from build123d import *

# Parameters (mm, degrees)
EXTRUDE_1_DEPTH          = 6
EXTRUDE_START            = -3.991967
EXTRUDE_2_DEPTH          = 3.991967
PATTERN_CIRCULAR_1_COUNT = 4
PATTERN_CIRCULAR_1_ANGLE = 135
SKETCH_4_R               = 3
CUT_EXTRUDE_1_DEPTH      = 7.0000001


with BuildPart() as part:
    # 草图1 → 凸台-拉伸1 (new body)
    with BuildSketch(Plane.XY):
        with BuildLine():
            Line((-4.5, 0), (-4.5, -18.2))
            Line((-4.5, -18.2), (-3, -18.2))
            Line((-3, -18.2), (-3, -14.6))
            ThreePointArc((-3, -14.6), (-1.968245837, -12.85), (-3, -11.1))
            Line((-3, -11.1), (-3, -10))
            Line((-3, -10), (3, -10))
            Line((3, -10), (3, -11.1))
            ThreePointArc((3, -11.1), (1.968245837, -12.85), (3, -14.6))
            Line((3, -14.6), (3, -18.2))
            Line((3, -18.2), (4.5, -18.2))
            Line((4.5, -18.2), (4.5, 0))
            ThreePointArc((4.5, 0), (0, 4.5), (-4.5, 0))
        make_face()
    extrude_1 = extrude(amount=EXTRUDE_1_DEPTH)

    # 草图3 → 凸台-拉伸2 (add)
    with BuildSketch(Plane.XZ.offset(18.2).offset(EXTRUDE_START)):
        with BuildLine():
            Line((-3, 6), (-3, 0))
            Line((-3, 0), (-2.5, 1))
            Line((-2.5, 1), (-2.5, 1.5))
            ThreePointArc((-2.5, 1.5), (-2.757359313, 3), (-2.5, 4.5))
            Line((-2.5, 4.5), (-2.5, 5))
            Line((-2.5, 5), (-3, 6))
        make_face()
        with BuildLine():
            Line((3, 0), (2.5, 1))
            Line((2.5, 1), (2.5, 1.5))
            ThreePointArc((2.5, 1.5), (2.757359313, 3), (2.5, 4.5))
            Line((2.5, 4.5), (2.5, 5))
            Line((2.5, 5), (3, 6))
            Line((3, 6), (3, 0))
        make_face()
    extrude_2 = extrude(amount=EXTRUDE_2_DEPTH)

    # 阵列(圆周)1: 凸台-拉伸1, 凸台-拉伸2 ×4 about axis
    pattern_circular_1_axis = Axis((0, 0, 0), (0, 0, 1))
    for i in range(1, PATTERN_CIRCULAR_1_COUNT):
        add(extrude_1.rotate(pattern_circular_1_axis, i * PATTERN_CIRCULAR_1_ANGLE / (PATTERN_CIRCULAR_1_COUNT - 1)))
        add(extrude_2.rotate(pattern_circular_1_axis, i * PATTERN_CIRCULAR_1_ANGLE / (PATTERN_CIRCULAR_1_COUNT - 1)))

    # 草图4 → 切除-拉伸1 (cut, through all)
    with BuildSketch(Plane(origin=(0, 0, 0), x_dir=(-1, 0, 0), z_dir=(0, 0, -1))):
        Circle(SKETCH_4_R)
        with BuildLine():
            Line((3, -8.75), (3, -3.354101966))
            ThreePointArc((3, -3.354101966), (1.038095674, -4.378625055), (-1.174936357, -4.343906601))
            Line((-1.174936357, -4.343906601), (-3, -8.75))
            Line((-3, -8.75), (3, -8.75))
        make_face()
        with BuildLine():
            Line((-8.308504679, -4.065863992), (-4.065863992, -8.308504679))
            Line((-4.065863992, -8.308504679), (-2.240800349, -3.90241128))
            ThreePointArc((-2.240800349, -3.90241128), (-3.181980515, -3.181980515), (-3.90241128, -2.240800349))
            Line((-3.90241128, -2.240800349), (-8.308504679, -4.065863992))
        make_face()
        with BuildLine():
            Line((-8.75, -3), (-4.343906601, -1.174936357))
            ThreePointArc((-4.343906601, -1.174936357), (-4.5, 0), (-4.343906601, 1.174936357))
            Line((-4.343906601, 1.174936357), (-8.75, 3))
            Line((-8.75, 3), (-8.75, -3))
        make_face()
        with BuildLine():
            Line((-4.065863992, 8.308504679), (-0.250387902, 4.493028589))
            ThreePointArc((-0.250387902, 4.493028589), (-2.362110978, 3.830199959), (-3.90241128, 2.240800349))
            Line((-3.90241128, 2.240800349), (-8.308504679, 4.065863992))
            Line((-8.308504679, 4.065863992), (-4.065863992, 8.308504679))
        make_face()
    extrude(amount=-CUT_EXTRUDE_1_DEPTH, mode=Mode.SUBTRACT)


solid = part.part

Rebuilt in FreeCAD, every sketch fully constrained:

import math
import FreeCAD as App
import Part
import Sketcher
from FreeCAD import Vector
Q = App.Units.Quantity

doc = App.newDocument("Part")
body = doc.addObject("PartDesign::Body", "Body")

sketch1 = doc.addObject("Sketcher::SketchObject", "Sketch")
body.addObject(sketch1)
sketch1.AttachmentSupport = (doc.XY_Plane, [""])
sketch1.MapMode = "FlatFace"
sketch1.addGeometry([
    Part.LineSegment(Vector(-4.5, 0, 0), Vector(-4.5, -18.2, 0)),
    Part.LineSegment(Vector(-4.5, -18.2, 0), Vector(-3, -18.2, 0)),
    Part.LineSegment(Vector(-3, -18.2, 0), Vector(-3, -14.6, 0)),
    Part.ArcOfCircle(Part.Circle(Vector(-3.968246, -12.85, 0), Vector(0, 0, 1), 2), math.radians(-61.044976), math.radians(61.044976)),
    Part.LineSegment(Vector(-3, -11.1, 0), Vector(-3, -10, 0)),
    Part.LineSegment(Vector(-3, -10, 0), Vector(3, -10, 0)),
    Part.LineSegment(Vector(3, -10, 0), Vector(3, -11.1, 0)),
    Part.ArcOfCircle(Part.Circle(Vector(3.968246, -12.85, 0), Vector(0, 0, 1), 2), math.radians(118.955024), math.radians(241.044976)),
    Part.LineSegment(Vector(3, -14.6, 0), Vector(3, -18.2, 0)),
    Part.LineSegment(Vector(3, -18.2, 0), Vector(4.5, -18.2, 0)),
    Part.LineSegment(Vector(4.5, -18.2, 0), Vector(4.5, 0, 0)),
    Part.ArcOfCircle(Part.Circle(Vector(0, 0, 0), Vector(0, 0, 1), 4.5), math.radians(0), math.radians(180)),
], False)
sketch1.addConstraint([
    Sketcher.Constraint("Coincident", 0, 2, 1, 1),
    Sketcher.Constraint("Coincident", 1, 2, 2, 1),
    Sketcher.Constraint("Coincident", 2, 2, 3, 1),
    Sketcher.Constraint("Coincident", 3, 2, 4, 1),
    Sketcher.Constraint("Coincident", 4, 2, 5, 1),
    Sketcher.Constraint("Coincident", 5, 2, 6, 1),
    Sketcher.Constraint("Coincident", 6, 2, 7, 1),
    Sketcher.Constraint("Coincident", 7, 2, 8, 1),
    Sketcher.Constraint("Coincident", 8, 2, 9, 1),
    Sketcher.Constraint("Coincident", 9, 2, 10, 1),
    Sketcher.Constraint("Tangent", 10, 2, 11, 1),
    Sketcher.Constraint("Tangent", 11, 2, 0, 1),
    Sketcher.Constraint("Vertical", 0),
    Sketcher.Constraint("Horizontal", 1),
    Sketcher.Constraint("Vertical", 2),
    Sketcher.Constraint("Vertical", 4),
    Sketcher.Constraint("Horizontal", 5),
    Sketcher.Constraint("Vertical", 6),
    Sketcher.Constraint("Vertical", 8),
    Sketcher.Constraint("Horizontal", 9),
    Sketcher.Constraint("Vertical", 10),
    Sketcher.Constraint("Coincident", 11, 3, -1, 1),
    Sketcher.Constraint("Equal", 3, 7),
    Sketcher.Constraint("Symmetric", 3, 3, 7, 3, -2),
    Sketcher.Constraint("Symmetric", 1, 2, 8, 2, -2),
    Sketcher.Constraint("Horizontal", 3, 2, 6, 2),
    Sketcher.Constraint("Vertical", 2, 2, 3, 2),
    Sketcher.Constraint("Radius", 3, Q("2 mm")),
    Sketcher.Constraint("Radius", 11, Q("4.5 mm")),
    Sketcher.Constraint("DistanceX", 5, 1, 5, 2, Q("6 mm")),
    Sketcher.Constraint("DistanceY", 0, 2, 0, 1, Q("18.2 mm")),
    Sketcher.Constraint("DistanceY", 2, 1, 2, 2, Q("3.6 mm")),
    Sketcher.Constraint("DistanceY", 4, 1, 4, 2, Q("1.1 mm")),
    Sketcher.Constraint("DistanceY", 4, 2, -1, 1, Q("10 mm")),
])
pad1 = doc.addObject("PartDesign::Pad", "Pad")
body.addObject(pad1)
pad1.Profile = sketch1
pad1.Length = 6

sketch2 = doc.addObject("Sketcher::SketchObject", "Sketch001")
body.addObject(sketch2)
sketch2.AttachmentSupport = (doc.XZ_Plane, [""])
sketch2.MapMode = "FlatFace"
sketch2.AttachmentOffset = App.Placement(Vector(0, 0, 14.208033), App.Rotation())
sketch2.addGeometry([
    Part.LineSegment(Vector(-3, 6, 0), Vector(-3, 0, 0)),
    Part.LineSegment(Vector(-3, 0, 0), Vector(-2.5, 1, 0)),
    Part.LineSegment(Vector(-2.5, 1, 0), Vector(-2.5, 1.5, 0)),
    Part.ArcOfCircle(Part.Circle(Vector(1.742641, 3, 0), Vector(0, 0, 1), 4.5), math.radians(160.528779), math.radians(199.471221)),
    Part.LineSegment(Vector(-2.5, 4.5, 0), Vector(-2.5, 5, 0)),
    Part.LineSegment(Vector(-2.5, 5, 0), Vector(-3, 6, 0)),
    Part.LineSegment(Vector(2.5, 1, 0), Vector(3, 0, 0)),
    Part.LineSegment(Vector(3, 0, 0), Vector(3, 6, 0)),
    Part.LineSegment(Vector(3, 6, 0), Vector(2.5, 5, 0)),
    Part.LineSegment(Vector(2.5, 5, 0), Vector(2.5, 4.5, 0)),
    Part.ArcOfCircle(Part.Circle(Vector(-1.742641, 3, 0), Vector(0, 0, 1), 4.5), math.radians(-19.471221), math.radians(19.471221)),
    Part.LineSegment(Vector(2.5, 1.5, 0), Vector(2.5, 1, 0)),
], False)
sketch2.addConstraint([
    Sketcher.Constraint("Coincident", 0, 2, 1, 1),
    Sketcher.Constraint("Coincident", 1, 2, 2, 1),
    Sketcher.Constraint("Coincident", 2, 2, 3, 2),
    Sketcher.Constraint("Coincident", 3, 1, 4, 1),
    Sketcher.Constraint("Coincident", 4, 2, 5, 1),
    Sketcher.Constraint("Coincident", 5, 2, 0, 1),
    Sketcher.Constraint("Coincident", 6, 2, 7, 1),
    Sketcher.Constraint("Coincident", 7, 2, 8, 1),
    Sketcher.Constraint("Coincident", 8, 2, 9, 1),
    Sketcher.Constraint("Coincident", 9, 2, 10, 2),
    Sketcher.Constraint("Coincident", 10, 1, 11, 1),
    Sketcher.Constraint("Coincident", 11, 2, 6, 1),
    Sketcher.Constraint("Vertical", 0),
    Sketcher.Constraint("Vertical", 2),
    Sketcher.Constraint("Vertical", 4),
    Sketcher.Constraint("Vertical", 7),
    Sketcher.Constraint("Vertical", 9),
    Sketcher.Constraint("Vertical", 11),
    Sketcher.Constraint("Equal", 3, 10),
    Sketcher.Constraint("Symmetric", 0, 2, 6, 2, -1, 1),
    Sketcher.Constraint("Symmetric", 3, 3, 10, 3, -2),
    Sketcher.Constraint("Symmetric", 4, 2, 8, 2, -2),
    Sketcher.Constraint("Symmetric", 1, 2, 11, 2, -2),
    Sketcher.Constraint("PointOnObject", 0, 2, -1),
    Sketcher.Constraint("Parallel", 5, 6),
    Sketcher.Constraint("Parallel", 1, 8),
    Sketcher.Constraint("Vertical", 2, 2, 3, 1),
    Sketcher.Constraint("Equal", 2, 4),
    Sketcher.Constraint("Radius", 3, Q("4.5 mm")),
    Sketcher.Constraint("DistanceY", 0, 2, 0, 1, Q("6 mm")),
    Sketcher.Constraint("DistanceY", 2, 1, 2, 2, Q("0.5 mm")),
    Sketcher.Constraint("DistanceX", 0, 2, -1, 1, Q("3 mm")),
    Sketcher.Constraint("DistanceY", -1, 1, 1, 2, Q("1 mm")),
    Sketcher.Constraint("DistanceX", 4, 2, 8, 2, Q("5 mm")),
])
pad2 = doc.addObject("PartDesign::Pad", "Pad001")
body.addObject(pad2)
pad2.Profile = sketch2
pad2.Length = 3.991967
doc.recompute()

polarpattern = doc.addObject("PartDesign::PolarPattern", "PolarPattern")
body.addObject(polarpattern)
polarpattern.Originals = [pad1, pad2]
polarpattern.Axis = (doc.Z_Axis, [""])
polarpattern.Angle = 135
polarpattern.Occurrences = 4
body.Tip = polarpattern

sketch3 = doc.addObject("Sketcher::SketchObject", "Sketch002")
body.addObject(sketch3)
sketch3.AttachmentSupport = (doc.XY_Plane, [""])
sketch3.MapMode = "FlatFace"
sketch3.addGeometry([
    Part.Circle(Vector(0, 0, 0), Vector(0, 0, 1), 3),
    Part.LineSegment(Vector(-3, -8.75, 0), Vector(-3, -3.354102, 0)),
    Part.ArcOfCircle(Part.Circle(Vector(0, 0, 0), Vector(0, 0, 1), 4.5), math.radians(-131.810315), math.radians(-74.864838)),
    Part.LineSegment(Vector(1.174936, -4.343907, 0), Vector(3, -8.75, 0)),
    Part.LineSegment(Vector(3, -8.75, 0), Vector(-3, -8.75, 0)),
    Part.LineSegment(Vector(8.308505, -4.065864, 0), Vector(4.065864, -8.308505, 0)),
    Part.LineSegment(Vector(4.065864, -8.308505, 0), Vector(2.2408, -3.902411, 0)),
    Part.ArcOfCircle(Part.Circle(Vector(0, 0, 0), Vector(0, 0, 1), 4.5), math.radians(-60.135162), math.radians(-29.864838)),
    Part.LineSegment(Vector(3.902411, -2.2408, 0), Vector(8.308505, -4.065864, 0)),
    Part.LineSegment(Vector(8.75, -3, 0), Vector(4.343907, -1.174936, 0)),
    Part.ArcOfCircle(Part.Circle(Vector(0, 0, 0), Vector(0, 0, 1), 4.5), math.radians(-15.135162), math.radians(15.135162)),
    Part.LineSegment(Vector(4.343907, 1.174936, 0), Vector(8.75, 3, 0)),
    Part.LineSegment(Vector(8.75, 3, 0), Vector(8.75, -3, 0)),
    Part.LineSegment(Vector(0.250388, 4.493029, 0), Vector(4.065864, 8.308505, 0)),
    Part.LineSegment(Vector(4.065864, 8.308505, 0), Vector(8.308505, 4.065864, 0)),
    Part.LineSegment(Vector(8.308505, 4.065864, 0), Vector(3.902411, 2.2408, 0)),
    Part.ArcOfCircle(Part.Circle(Vector(0, 0, 0), Vector(0, 0, 1), 4.5), math.radians(29.864838), math.radians(86.810315)),
], False)
sketch3.addConstraint([
    Sketcher.Constraint("Coincident", 1, 2, 2, 1),
    Sketcher.Constraint("Coincident", 2, 2, 3, 1),
    Sketcher.Constraint("Coincident", 3, 2, 4, 1),
    Sketcher.Constraint("Coincident", 4, 2, 1, 1),
    Sketcher.Constraint("Coincident", 5, 2, 6, 1),
    Sketcher.Constraint("Coincident", 6, 2, 7, 1),
    Sketcher.Constraint("Coincident", 7, 2, 8, 1),
    Sketcher.Constraint("Coincident", 8, 2, 5, 1),
    Sketcher.Constraint("Coincident", 9, 2, 10, 1),
    Sketcher.Constraint("Coincident", 10, 2, 11, 1),
    Sketcher.Constraint("Coincident", 11, 2, 12, 1),
    Sketcher.Constraint("Coincident", 12, 2, 9, 1),
    Sketcher.Constraint("Coincident", 13, 2, 14, 1),
    Sketcher.Constraint("Coincident", 14, 2, 15, 1),
    Sketcher.Constraint("Coincident", 15, 2, 16, 1),
    Sketcher.Constraint("Coincident", 16, 2, 13, 1),
    Sketcher.Constraint("Vertical", 1),
    Sketcher.Constraint("Horizontal", 4),
    Sketcher.Constraint("Vertical", 12),
    Sketcher.Constraint("Coincident", 0, 3, -1, 1),
    Sketcher.Constraint("Coincident", 2, 3, -1, 1),
    Sketcher.Constraint("Coincident", 7, 3, -1, 1),
    Sketcher.Constraint("Coincident", 10, 3, -1, 1),
    Sketcher.Constraint("Coincident", 16, 3, -1, 1),
    Sketcher.Constraint("Equal", 2, 7),
    Sketcher.Constraint("Equal", 7, 10),
    Sketcher.Constraint("Equal", 10, 16),
    Sketcher.Constraint("Symmetric", 5, 2, 13, 2, -1),
    Sketcher.Constraint("Symmetric", 8, 2, 14, 2, -1),
    Sketcher.Constraint("Parallel", 3, 6),
    Sketcher.Constraint("Parallel", 8, 9),
    Sketcher.Constraint("Perpendicular", 6, 11),
    Sketcher.Constraint("Parallel", 5, 13),
    Sketcher.Constraint("Perpendicular", 13, 14),
    Sketcher.Constraint("Parallel", 11, 15),
    Sketcher.Constraint("Vertical", 9, 2, 10, 2),
    Sketcher.Constraint("Vertical", 7, 2, 15, 2),
    Sketcher.Constraint("Equal", 4, 12),
    Sketcher.Constraint("Equal", 3, 6),
    Sketcher.Constraint("Equal", 6, 8),
    Sketcher.Constraint("Equal", 8, 9),
    Sketcher.Constraint("Diameter", 0, Q("6 mm")),
    Sketcher.Constraint("Radius", 2, Q("4.5 mm")),
    Sketcher.Constraint("DistanceX", 4, 2, 4, 1, Q("6 mm")),
    Sketcher.Constraint("Distance", 5, Q("6 mm")),
    Sketcher.Constraint("DistanceX", 1, 2, -1, 1, Q("3 mm")),
    Sketcher.Constraint("Angle", 3, Q("-67.5 deg")),
    Sketcher.Constraint("DistanceY", 3, 2, -1, 1, Q("8.75 mm")),
])
pocket1 = doc.addObject("PartDesign::Pocket", "Pocket")
body.addObject(pocket1)
pocket1.Profile = sketch3
pocket1.Type = "ThroughAll"
pocket1.Reversed = True

doc.recompute()
